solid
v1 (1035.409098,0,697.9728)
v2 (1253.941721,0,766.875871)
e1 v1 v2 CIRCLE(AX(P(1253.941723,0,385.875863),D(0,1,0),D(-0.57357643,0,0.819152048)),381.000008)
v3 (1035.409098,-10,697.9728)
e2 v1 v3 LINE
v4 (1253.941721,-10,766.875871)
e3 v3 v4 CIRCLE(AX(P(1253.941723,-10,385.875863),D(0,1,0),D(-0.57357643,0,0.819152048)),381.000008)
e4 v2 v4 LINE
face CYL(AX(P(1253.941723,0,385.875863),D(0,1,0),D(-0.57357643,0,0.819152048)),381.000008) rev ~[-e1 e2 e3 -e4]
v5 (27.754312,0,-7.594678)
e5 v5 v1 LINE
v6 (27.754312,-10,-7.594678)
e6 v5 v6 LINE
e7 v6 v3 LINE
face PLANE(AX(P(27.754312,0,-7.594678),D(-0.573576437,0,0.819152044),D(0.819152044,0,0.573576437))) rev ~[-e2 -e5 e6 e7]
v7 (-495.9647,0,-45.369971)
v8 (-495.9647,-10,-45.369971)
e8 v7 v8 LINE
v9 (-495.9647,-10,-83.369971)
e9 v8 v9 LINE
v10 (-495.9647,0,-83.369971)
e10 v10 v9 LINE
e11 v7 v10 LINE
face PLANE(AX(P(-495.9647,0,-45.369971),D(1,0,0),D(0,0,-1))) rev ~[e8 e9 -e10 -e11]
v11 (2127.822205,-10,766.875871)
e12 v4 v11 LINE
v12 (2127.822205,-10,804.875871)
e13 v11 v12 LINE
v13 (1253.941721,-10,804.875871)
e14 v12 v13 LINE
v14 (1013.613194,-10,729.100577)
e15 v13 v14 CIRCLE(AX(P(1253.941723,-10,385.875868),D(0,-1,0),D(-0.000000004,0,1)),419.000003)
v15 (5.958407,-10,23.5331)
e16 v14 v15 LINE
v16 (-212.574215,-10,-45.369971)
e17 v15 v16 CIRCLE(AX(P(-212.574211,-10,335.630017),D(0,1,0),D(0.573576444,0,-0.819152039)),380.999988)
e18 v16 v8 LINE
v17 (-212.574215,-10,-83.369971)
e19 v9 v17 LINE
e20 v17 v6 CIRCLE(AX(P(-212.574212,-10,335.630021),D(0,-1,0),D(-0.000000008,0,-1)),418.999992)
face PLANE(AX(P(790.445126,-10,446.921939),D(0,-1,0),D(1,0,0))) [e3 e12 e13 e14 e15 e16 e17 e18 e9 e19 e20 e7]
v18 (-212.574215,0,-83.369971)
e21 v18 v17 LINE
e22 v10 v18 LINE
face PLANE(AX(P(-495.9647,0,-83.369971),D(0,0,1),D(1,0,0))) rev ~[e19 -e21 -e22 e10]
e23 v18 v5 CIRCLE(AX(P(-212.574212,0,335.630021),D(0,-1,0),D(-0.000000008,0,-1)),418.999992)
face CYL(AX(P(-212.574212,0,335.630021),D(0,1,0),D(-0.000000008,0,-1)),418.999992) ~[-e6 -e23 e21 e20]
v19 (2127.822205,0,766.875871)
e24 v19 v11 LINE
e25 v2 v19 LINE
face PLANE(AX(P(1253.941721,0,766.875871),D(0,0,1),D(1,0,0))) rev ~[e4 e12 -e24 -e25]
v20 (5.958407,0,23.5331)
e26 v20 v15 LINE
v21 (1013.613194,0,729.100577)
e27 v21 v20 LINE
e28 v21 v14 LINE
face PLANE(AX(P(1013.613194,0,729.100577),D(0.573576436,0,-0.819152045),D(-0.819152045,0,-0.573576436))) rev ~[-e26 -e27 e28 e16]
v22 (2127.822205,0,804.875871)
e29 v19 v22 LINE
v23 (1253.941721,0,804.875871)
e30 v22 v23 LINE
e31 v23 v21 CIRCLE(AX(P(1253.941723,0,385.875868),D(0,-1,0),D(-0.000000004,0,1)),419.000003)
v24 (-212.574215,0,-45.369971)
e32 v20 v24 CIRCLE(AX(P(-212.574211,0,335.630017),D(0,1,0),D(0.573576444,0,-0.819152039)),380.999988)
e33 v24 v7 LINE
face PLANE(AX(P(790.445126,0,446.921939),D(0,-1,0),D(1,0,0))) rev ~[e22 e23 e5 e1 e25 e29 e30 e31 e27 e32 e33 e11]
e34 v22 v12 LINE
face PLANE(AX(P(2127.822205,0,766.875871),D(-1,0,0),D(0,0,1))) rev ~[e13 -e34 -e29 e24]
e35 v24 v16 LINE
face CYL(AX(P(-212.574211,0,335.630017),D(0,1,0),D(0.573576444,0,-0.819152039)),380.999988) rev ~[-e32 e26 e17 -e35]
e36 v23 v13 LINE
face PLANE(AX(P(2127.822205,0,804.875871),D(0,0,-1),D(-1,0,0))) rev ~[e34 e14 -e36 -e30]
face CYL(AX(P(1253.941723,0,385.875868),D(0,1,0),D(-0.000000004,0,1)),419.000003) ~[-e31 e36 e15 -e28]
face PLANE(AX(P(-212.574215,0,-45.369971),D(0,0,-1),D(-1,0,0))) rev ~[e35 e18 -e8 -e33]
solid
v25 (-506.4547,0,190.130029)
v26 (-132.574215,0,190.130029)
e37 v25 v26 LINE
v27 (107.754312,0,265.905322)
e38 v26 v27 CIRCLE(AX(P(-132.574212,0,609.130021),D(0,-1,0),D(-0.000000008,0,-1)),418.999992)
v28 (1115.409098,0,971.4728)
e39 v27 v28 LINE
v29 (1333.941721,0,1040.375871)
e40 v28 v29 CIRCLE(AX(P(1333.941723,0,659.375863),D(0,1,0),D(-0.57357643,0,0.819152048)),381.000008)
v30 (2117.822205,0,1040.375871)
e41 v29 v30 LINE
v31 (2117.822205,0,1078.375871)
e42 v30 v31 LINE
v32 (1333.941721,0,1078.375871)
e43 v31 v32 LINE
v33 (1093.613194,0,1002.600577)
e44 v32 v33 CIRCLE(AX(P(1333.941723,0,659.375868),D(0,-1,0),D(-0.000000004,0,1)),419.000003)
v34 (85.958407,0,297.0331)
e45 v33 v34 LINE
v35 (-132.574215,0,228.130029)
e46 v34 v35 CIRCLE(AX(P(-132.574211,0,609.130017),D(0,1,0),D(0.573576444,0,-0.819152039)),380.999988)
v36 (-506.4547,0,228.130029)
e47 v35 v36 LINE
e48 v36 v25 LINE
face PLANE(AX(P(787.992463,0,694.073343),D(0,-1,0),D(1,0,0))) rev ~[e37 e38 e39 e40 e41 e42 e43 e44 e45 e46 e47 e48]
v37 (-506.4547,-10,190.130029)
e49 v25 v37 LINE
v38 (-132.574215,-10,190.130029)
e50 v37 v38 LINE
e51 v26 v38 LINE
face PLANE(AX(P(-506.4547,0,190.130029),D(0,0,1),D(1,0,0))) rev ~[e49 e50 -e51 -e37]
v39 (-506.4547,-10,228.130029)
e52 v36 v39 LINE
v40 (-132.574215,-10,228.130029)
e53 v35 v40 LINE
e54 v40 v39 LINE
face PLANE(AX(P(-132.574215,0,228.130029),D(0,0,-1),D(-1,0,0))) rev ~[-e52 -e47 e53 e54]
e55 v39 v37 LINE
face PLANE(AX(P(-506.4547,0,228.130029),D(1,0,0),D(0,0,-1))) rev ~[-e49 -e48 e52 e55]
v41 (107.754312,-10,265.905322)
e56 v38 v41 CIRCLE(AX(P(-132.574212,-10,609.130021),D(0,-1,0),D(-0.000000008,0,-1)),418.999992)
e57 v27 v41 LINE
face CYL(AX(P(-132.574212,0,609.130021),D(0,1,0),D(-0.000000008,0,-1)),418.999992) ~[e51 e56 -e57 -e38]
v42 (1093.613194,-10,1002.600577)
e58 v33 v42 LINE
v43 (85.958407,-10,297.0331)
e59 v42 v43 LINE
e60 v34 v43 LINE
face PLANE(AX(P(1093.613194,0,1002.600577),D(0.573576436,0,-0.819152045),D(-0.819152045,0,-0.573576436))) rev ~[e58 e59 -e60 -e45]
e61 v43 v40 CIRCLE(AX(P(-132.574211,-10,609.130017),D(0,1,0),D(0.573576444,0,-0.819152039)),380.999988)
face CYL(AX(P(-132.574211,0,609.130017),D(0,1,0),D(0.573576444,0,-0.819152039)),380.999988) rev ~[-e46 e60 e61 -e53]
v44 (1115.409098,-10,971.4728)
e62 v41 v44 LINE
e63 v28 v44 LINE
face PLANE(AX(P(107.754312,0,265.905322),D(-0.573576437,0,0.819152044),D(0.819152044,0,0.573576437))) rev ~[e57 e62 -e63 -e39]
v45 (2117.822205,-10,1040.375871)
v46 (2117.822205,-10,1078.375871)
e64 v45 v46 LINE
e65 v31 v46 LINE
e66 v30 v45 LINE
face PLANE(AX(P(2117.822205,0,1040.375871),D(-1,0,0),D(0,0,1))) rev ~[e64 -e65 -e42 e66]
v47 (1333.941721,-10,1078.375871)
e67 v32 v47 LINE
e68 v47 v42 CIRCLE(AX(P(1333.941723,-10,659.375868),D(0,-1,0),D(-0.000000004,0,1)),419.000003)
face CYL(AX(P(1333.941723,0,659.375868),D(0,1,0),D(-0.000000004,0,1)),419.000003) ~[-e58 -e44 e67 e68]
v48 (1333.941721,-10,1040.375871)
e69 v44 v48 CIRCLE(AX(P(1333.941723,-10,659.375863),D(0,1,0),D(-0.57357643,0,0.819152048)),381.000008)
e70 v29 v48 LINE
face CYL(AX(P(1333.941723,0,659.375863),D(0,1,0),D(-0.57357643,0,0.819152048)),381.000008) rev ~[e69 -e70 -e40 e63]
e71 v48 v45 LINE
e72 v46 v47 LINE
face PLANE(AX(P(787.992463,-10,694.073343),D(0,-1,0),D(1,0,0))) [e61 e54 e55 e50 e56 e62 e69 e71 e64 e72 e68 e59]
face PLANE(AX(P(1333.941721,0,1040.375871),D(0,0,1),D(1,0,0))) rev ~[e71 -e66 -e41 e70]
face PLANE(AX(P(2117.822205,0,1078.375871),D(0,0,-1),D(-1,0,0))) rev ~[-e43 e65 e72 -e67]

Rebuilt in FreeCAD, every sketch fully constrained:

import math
import FreeCAD as App
import Part
import Sketcher
from FreeCAD import Vector
Q = App.Units.Quantity

doc = App.newDocument("Part")
params = doc.addObject("Spreadsheet::Sheet", "Params")
for row, (alias, value) in enumerate([
    ("sketch1_height", "38 mm"),
    ("pad1_length", "10 mm"),
], start=1):
    params.set(f"A{row}", alias)
    params.set(f"B{row}", "=" + value)
    params.setAlias(f"B{row}", alias)

body = doc.addObject("PartDesign::Body", "Body")
body.AllowCompound = True

# Sketch on XZ plane
sketch1 = doc.addObject("Sketcher::SketchObject", "Sketch")
body.addObject(sketch1)
sketch1.AttachmentSupport = (doc.XZ_Plane, [""])
sketch1.MapMode = "FlatFace"
sketch1.addGeometry(Part.LineSegment(Vector(1254, 767, 0), Vector(2128, 767, 0)), False)
sketch1.addGeometry(Part.LineSegment(Vector(2128, 767, 0), Vector(2128, 805, 0)), False)
sketch1.addGeometry(Part.LineSegment(Vector(2128, 805, 0), Vector(1254, 805, 0)), False)
sketch1.addGeometry(Part.ArcOfCircle(Part.Circle(Vector(1254, 386, 0), Vector(0, 0, 1), 419), math.radians(90), math.radians(125)), False)
sketch1.addGeometry(Part.LineSegment(Vector(1014, 729, 0), Vector(6, 24, 0)), False)
sketch1.addGeometry(Part.ArcOfCircle(Part.Circle(Vector(-213, 336, 0), Vector(0, 0, 1), 381), math.radians(-90), math.radians(-55)), False)
sketch1.addGeometry(Part.LineSegment(Vector(-213, -45, 0), Vector(-496, -45, 0)), False)
sketch1.addGeometry(Part.LineSegment(Vector(-496, -45, 0), Vector(-496, -83, 0)), False)
sketch1.addGeometry(Part.LineSegment(Vector(-496, -83, 0), Vector(-213, -83, 0)), False)
sketch1.addGeometry(Part.ArcOfCircle(Part.Circle(Vector(-213, 336, 0), Vector(0, 0, 1), 419), math.radians(-90), math.radians(-55)), False)
sketch1.addGeometry(Part.LineSegment(Vector(28, -8, 0), Vector(1035, 698, 0)), False)
sketch1.addGeometry(Part.ArcOfCircle(Part.Circle(Vector(1254, 386, 0), Vector(0, 0, 1), 381), math.radians(90), math.radians(125)), False)
sketch1.addGeometry(Part.LineSegment(Vector(1334, 1040, 0), Vector(2118, 1040, 0)), False)
sketch1.addGeometry(Part.LineSegment(Vector(2118, 1040, 0), Vector(2118, 1078, 0)), False)
sketch1.addGeometry(Part.LineSegment(Vector(2118, 1078, 0), Vector(1334, 1078, 0)), False)
sketch1.addGeometry(Part.ArcOfCircle(Part.Circle(Vector(1334, 659, 0), Vector(0, 0, 1), 419), math.radians(90), math.radians(125)), False)
sketch1.addGeometry(Part.LineSegment(Vector(1094, 1003, 0), Vector(86, 297, 0)), False)
sketch1.addGeometry(Part.ArcOfCircle(Part.Circle(Vector(-133, 609, 0), Vector(0, 0, 1), 381), math.radians(-90), math.radians(-55)), False)
sketch1.addGeometry(Part.LineSegment(Vector(-133, 228, 0), Vector(-506, 228, 0)), False)
sketch1.addGeometry(Part.LineSegment(Vector(-506, 228, 0), Vector(-506, 190, 0)), False)
sketch1.addGeometry(Part.LineSegment(Vector(-506, 190, 0), Vector(-133, 190, 0)), False)
sketch1.addGeometry(Part.ArcOfCircle(Part.Circle(Vector(-133, 609, 0), Vector(0, 0, 1), 419), math.radians(-90), math.radians(-55)), False)
sketch1.addGeometry(Part.LineSegment(Vector(108, 266, 0), Vector(1115, 971, 0)), False)
sketch1.addGeometry(Part.ArcOfCircle(Part.Circle(Vector(1334, 659, 0), Vector(0, 0, 1), 381), math.radians(90), math.radians(125)), False)
sketch1.addConstraint(Sketcher.Constraint("Coincident", 0, 2, 1, 1))
sketch1.addConstraint(Sketcher.Constraint("Coincident", 1, 2, 2, 1))
sketch1.addConstraint(Sketcher.Constraint("Tangent", 2, 2, 3, 1))
sketch1.addConstraint(Sketcher.Constraint("Tangent", 3, 2, 4, 1))
sketch1.addConstraint(Sketcher.Constraint("Tangent", 4, 2, 5, 2))
sketch1.addConstraint(Sketcher.Constraint("Tangent", 5, 1, 6, 1))
sketch1.addConstraint(Sketcher.Constraint("Coincident", 6, 2, 7, 1))
sketch1.addConstraint(Sketcher.Constraint("Coincident", 7, 2, 8, 1))
sketch1.addConstraint(Sketcher.Constraint("Tangent", 8, 2, 9, 1))
sketch1.addConstraint(Sketcher.Constraint("Tangent", 9, 2, 10, 1))
sketch1.addConstraint(Sketcher.Constraint("Tangent", 10, 2, 11, 2))
sketch1.addConstraint(Sketcher.Constraint("Tangent", 11, 1, 0, 1))
sketch1.addConstraint(Sketcher.Constraint("Coincident", 12, 2, 13, 1))
sketch1.addConstraint(Sketcher.Constraint("Coincident", 13, 2, 14, 1))
sketch1.addConstraint(Sketcher.Constraint("Tangent", 14, 2, 15, 1))
sketch1.addConstraint(Sketcher.Constraint("Tangent", 15, 2, 16, 1))
sketch1.addConstraint(Sketcher.Constraint("Tangent", 16, 2, 17, 2))
sketch1.addConstraint(Sketcher.Constraint("Tangent", 17, 1, 18, 1))
sketch1.addConstraint(Sketcher.Constraint("Coincident", 18, 2, 19, 1))
sketch1.addConstraint(Sketcher.Constraint("Coincident", 19, 2, 20, 1))
sketch1.addConstraint(Sketcher.Constraint("Tangent", 20, 2, 21, 1))
sketch1.addConstraint(Sketcher.Constraint("Tangent", 21, 2, 22, 1))
sketch1.addConstraint(Sketcher.Constraint("Tangent", 22, 2, 23, 2))
sketch1.addConstraint(Sketcher.Constraint("Tangent", 23, 1, 12, 1))
sketch1.addConstraint(Sketcher.Constraint("Horizontal", 0))
sketch1.addConstraint(Sketcher.Constraint("Vertical", 1))
sketch1.addConstraint(Sketcher.Constraint("Horizontal", 2))
sketch1.addConstraint(Sketcher.Constraint("Horizontal", 6))
sketch1.addConstraint(Sketcher.Constraint("Vertical", 7))
sketch1.addConstraint(Sketcher.Constraint("Horizontal", 8))
sketch1.addConstraint(Sketcher.Constraint("Horizontal", 12))
sketch1.addConstraint(Sketcher.Constraint("Vertical", 13))
sketch1.addConstraint(Sketcher.Constraint("Horizontal", 14))
sketch1.addConstraint(Sketcher.Constraint("Horizontal", 18))
sketch1.addConstraint(Sketcher.Constraint("Vertical", 19))
sketch1.addConstraint(Sketcher.Constraint("Horizontal", 20))
sketch1.addConstraint(Sketcher.Constraint("Coincident", 9, 3, 5, 3))
sketch1.addConstraint(Sketcher.Constraint("Coincident", 11, 3, 3, 3))
sketch1.addConstraint(Sketcher.Constraint("Coincident", 21, 3, 17, 3))
sketch1.addConstraint(Sketcher.Constraint("Coincident", 23, 3, 15, 3))
sketch1.addConstraint(Sketcher.Constraint("Equal", 3, 15))
sketch1.addConstraint(Sketcher.Constraint("Equal", 5, 17))
sketch1.addConstraint(Sketcher.Constraint("Equal", 9, 21))
sketch1.addConstraint(Sketcher.Constraint("Equal", 11, 23))
sketch1.addConstraint(Sketcher.Constraint("Parallel", 4, 10))
sketch1.addConstraint(Sketcher.Constraint("Parallel", 10, 16))
sketch1.addConstraint(Sketcher.Constraint("Equal", 10, 16))
sketch1.addConstraint(Sketcher.Constraint("DistanceY", 1, 1, 1, 2, 38.0))
sketch1.addConstraint(Sketcher.Constraint("Angle", 4, Q("-145 deg")))
sketch1.addConstraint(Sketcher.Constraint("DistanceX", 3, 3, 15, 3, 80.0))
sketch1.addConstraint(Sketcher.Constraint("DistanceX", 12, 2, 1, 2, 10.0))
sketch1.addConstraint(Sketcher.Constraint("DistanceY", 3, 3, 15, 3, 273.5))
sketch1.addConstraint(Sketcher.Constraint("Radius", 5, 380.999988))
sketch1.addConstraint(Sketcher.Constraint("DistanceX", 18, 2, 6, 2, 10.49))
sketch1.addConstraint(Sketcher.Constraint("Radius", 3, 419.000003))
sketch1.addConstraint(Sketcher.Constraint("DistanceY", -1, 1, 4, 2, 23.5331))
sketch1.addConstraint(Sketcher.Constraint("DistanceX", 6, 2, -1, 1, 495.9647))
sketch1.addConstraint(Sketcher.Constraint("DistanceX", -1, 1, 10, 2, 1035.409098))
sketch1.addConstraint(Sketcher.Constraint("DistanceY", -1, 1, 10, 2, 697.9728))
sketch1.addConstraint(Sketcher.Constraint("DistanceX", 0, 1, 0, 2, 873.880484))
sketch1.setExpression("Constraints[47]", "Params.sketch1_height")
pad1 = doc.addObject("PartDesign::Pad", "Pad")
body.addObject(pad1)
pad1.Profile = sketch1
pad1.setExpression("Length", "Params.pad1_length")

doc.recompute()
